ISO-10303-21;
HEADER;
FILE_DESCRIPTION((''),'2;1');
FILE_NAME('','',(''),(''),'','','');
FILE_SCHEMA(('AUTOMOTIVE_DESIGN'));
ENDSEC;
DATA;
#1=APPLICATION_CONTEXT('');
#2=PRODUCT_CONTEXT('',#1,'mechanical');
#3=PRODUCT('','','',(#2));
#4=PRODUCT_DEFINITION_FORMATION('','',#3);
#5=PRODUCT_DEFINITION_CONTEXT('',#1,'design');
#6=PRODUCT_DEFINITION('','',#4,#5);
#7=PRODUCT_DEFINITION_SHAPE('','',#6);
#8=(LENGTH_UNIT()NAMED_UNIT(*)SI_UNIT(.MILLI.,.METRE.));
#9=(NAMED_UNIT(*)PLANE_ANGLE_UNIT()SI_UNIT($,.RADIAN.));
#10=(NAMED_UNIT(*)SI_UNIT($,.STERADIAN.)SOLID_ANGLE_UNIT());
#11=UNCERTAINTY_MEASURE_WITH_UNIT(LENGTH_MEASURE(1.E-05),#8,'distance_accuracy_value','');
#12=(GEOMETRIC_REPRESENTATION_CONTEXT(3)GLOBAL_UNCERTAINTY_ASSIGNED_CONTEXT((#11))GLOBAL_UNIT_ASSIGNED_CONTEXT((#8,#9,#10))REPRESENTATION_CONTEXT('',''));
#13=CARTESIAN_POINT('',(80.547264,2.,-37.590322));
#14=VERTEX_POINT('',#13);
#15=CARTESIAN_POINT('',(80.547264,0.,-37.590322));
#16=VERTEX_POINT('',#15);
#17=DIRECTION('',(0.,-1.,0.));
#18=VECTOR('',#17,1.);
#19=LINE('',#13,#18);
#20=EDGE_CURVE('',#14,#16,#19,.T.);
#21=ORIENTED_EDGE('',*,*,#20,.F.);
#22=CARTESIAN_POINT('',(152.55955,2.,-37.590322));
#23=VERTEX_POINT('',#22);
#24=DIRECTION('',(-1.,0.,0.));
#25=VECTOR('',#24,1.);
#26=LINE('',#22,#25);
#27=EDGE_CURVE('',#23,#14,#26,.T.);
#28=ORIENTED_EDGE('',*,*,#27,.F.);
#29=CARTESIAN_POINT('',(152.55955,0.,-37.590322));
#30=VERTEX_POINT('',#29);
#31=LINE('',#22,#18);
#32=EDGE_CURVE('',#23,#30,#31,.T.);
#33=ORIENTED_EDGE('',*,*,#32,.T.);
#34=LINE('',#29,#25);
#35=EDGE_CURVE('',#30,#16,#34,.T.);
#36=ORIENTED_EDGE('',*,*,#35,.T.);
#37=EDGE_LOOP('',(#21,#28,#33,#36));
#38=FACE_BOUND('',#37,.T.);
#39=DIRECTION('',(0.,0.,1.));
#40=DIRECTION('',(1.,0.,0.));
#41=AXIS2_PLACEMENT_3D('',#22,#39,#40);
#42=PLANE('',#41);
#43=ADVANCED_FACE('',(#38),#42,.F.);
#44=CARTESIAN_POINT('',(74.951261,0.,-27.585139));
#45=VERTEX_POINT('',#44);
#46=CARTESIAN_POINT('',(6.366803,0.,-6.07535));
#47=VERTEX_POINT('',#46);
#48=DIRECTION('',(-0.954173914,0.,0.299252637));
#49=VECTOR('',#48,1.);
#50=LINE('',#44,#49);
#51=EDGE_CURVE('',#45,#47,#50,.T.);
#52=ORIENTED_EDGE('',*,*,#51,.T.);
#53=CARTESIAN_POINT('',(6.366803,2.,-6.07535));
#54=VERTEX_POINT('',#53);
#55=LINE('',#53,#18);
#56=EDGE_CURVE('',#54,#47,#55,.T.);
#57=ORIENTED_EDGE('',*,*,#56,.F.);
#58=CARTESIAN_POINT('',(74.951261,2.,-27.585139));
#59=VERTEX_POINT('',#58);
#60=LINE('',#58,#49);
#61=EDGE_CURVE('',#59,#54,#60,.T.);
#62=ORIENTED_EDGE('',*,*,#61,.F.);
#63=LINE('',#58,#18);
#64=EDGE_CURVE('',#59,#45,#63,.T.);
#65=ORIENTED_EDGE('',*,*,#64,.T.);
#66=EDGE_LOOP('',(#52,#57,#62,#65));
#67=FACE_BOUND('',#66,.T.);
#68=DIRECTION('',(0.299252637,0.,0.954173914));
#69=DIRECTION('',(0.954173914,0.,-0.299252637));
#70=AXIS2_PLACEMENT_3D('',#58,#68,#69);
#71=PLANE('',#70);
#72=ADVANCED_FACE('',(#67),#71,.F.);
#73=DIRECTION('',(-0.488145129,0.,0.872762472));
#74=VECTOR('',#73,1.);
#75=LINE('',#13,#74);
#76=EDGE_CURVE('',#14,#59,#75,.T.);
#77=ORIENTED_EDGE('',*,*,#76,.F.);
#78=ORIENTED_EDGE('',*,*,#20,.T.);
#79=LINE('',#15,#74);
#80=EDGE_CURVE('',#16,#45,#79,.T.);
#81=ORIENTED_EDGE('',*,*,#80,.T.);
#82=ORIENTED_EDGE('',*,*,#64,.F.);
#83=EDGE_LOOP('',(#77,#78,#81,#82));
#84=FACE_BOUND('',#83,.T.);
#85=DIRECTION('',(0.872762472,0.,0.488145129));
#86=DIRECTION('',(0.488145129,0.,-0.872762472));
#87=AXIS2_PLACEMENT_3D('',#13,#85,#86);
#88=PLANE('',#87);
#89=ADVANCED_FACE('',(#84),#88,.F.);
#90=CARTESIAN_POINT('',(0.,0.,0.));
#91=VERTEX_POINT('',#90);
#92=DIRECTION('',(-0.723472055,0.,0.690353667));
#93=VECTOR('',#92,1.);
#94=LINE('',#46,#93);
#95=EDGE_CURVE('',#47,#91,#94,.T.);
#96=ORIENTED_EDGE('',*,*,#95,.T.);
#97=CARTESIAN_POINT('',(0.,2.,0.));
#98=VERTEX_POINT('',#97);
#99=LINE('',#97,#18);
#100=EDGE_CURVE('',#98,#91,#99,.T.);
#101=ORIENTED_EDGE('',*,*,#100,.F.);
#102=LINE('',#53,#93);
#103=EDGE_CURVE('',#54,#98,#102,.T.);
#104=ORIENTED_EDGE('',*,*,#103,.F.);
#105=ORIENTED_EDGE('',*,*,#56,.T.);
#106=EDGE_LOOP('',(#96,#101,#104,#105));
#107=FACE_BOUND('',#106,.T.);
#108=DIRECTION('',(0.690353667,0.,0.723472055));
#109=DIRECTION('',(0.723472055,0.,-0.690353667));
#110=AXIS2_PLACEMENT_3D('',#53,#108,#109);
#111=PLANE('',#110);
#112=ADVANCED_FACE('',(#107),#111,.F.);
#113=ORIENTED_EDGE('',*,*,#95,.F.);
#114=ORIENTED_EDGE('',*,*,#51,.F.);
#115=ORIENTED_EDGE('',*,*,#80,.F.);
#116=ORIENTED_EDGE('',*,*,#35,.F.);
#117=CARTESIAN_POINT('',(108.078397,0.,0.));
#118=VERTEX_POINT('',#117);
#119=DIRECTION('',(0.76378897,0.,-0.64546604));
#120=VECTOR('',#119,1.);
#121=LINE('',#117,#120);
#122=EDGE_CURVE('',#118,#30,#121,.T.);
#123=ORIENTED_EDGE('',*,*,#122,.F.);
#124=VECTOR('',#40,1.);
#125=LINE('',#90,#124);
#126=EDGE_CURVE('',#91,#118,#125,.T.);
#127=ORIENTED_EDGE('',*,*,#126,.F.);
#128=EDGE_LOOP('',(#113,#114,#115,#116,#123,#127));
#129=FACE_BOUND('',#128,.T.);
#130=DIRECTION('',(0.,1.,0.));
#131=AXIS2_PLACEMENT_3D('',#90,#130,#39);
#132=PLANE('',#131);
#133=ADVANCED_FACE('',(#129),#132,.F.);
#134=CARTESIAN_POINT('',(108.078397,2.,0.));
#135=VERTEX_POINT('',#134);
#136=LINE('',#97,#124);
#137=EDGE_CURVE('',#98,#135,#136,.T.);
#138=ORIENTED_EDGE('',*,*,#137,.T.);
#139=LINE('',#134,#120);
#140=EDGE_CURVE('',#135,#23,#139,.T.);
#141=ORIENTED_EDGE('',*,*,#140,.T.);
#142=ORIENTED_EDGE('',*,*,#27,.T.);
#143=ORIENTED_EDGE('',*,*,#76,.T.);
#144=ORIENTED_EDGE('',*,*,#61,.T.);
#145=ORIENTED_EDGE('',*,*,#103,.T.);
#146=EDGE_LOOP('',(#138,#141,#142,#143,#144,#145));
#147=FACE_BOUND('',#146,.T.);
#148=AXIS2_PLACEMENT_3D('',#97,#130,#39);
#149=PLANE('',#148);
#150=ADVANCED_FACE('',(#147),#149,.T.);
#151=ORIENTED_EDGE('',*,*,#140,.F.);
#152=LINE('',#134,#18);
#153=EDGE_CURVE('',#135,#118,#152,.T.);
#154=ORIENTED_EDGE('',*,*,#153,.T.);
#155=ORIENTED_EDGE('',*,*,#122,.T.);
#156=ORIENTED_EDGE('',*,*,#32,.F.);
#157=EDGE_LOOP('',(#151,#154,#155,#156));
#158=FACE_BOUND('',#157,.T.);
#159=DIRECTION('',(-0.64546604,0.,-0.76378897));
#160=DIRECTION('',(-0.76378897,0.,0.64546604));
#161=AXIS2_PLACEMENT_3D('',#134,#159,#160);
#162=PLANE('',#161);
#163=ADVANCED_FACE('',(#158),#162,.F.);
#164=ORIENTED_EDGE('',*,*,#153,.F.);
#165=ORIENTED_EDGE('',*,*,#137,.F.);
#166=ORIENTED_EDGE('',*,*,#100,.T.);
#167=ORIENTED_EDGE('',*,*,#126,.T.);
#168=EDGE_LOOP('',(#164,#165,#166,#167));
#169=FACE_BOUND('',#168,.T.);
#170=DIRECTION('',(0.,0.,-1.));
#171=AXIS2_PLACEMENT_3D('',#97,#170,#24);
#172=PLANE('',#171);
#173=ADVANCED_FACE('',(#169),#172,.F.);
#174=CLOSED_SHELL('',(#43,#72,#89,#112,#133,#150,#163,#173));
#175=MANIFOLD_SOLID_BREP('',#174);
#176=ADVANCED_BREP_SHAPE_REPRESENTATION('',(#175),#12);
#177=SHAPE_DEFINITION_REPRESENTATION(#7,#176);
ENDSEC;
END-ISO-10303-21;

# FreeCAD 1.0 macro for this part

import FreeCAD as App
import Part
import Sketcher
Q = App.Units.Quantity


def add_polygon(sketch, points):
    """Adds a closed chain of lines whose ends are joined by coincident constraints."""
    first, n = sketch.GeometryCount, len(points)
    for a, b in zip(points, points[1:] + points[:1]):
        sketch.addGeometry(Part.LineSegment(App.Vector(*a, 0), App.Vector(*b, 0)), False)
    for i in range(n):
        sketch.addConstraint(Sketcher.Constraint("Coincident", first + i, 2, first + (i + 1) % n, 1))

doc = App.newDocument("Part")
body = doc.addObject("PartDesign::Body", "Body")

# Sketch on XZ plane
sketch1 = doc.addObject("Sketcher::SketchObject", "Sketch")
body.addObject(sketch1)
sketch1.AttachmentSupport = (doc.XZ_Plane, [""])
sketch1.MapMode = "FlatFace"
add_polygon(sketch1, [(153, -38), (81, -38), (75, -28), (6, -6), (0, 0), (108, 0)])  # lines 0-5
sketch1.addConstraint(Sketcher.Constraint("Horizontal", 0))
sketch1.addConstraint(Sketcher.Constraint("Horizontal", 4))
sketch1.addConstraint(Sketcher.Constraint("Coincident", 3, 2, -1, 1))
sketch1.addConstraint(Sketcher.Constraint("Distance", 1, Q("11.463809 mm")))
sketch1.addConstraint(Sketcher.Constraint("Distance", 5, Q("58.23749 mm")))
sketch1.addConstraint(Sketcher.Constraint("DistanceX", 0, 2, 0, 1, Q("72.012286 mm")))
sketch1.addConstraint(Sketcher.Constraint("DistanceX", 4, 1, 4, 2, Q("108.078397 mm")))
sketch1.addConstraint(Sketcher.Constraint("DistanceY", 0, 2, -1, 1, Q("37.590322 mm")))
sketch1.addConstraint(Sketcher.Constraint("DistanceX", -1, 1, 1, 2, Q("74.951261 mm")))
sketch1.addConstraint(Sketcher.Constraint("DistanceY", 2, 2, -1, 1, Q("6.07535 mm")))
sketch1.addConstraint(Sketcher.Constraint("DistanceX", 2, 2, 1, 2, Q("68.584458 mm")))
pad1 = doc.addObject("PartDesign::Pad", "Pad")
body.addObject(pad1)
pad1.Profile = sketch1
pad1.Length = 2
pad1.Reversed = True

doc.recompute()
